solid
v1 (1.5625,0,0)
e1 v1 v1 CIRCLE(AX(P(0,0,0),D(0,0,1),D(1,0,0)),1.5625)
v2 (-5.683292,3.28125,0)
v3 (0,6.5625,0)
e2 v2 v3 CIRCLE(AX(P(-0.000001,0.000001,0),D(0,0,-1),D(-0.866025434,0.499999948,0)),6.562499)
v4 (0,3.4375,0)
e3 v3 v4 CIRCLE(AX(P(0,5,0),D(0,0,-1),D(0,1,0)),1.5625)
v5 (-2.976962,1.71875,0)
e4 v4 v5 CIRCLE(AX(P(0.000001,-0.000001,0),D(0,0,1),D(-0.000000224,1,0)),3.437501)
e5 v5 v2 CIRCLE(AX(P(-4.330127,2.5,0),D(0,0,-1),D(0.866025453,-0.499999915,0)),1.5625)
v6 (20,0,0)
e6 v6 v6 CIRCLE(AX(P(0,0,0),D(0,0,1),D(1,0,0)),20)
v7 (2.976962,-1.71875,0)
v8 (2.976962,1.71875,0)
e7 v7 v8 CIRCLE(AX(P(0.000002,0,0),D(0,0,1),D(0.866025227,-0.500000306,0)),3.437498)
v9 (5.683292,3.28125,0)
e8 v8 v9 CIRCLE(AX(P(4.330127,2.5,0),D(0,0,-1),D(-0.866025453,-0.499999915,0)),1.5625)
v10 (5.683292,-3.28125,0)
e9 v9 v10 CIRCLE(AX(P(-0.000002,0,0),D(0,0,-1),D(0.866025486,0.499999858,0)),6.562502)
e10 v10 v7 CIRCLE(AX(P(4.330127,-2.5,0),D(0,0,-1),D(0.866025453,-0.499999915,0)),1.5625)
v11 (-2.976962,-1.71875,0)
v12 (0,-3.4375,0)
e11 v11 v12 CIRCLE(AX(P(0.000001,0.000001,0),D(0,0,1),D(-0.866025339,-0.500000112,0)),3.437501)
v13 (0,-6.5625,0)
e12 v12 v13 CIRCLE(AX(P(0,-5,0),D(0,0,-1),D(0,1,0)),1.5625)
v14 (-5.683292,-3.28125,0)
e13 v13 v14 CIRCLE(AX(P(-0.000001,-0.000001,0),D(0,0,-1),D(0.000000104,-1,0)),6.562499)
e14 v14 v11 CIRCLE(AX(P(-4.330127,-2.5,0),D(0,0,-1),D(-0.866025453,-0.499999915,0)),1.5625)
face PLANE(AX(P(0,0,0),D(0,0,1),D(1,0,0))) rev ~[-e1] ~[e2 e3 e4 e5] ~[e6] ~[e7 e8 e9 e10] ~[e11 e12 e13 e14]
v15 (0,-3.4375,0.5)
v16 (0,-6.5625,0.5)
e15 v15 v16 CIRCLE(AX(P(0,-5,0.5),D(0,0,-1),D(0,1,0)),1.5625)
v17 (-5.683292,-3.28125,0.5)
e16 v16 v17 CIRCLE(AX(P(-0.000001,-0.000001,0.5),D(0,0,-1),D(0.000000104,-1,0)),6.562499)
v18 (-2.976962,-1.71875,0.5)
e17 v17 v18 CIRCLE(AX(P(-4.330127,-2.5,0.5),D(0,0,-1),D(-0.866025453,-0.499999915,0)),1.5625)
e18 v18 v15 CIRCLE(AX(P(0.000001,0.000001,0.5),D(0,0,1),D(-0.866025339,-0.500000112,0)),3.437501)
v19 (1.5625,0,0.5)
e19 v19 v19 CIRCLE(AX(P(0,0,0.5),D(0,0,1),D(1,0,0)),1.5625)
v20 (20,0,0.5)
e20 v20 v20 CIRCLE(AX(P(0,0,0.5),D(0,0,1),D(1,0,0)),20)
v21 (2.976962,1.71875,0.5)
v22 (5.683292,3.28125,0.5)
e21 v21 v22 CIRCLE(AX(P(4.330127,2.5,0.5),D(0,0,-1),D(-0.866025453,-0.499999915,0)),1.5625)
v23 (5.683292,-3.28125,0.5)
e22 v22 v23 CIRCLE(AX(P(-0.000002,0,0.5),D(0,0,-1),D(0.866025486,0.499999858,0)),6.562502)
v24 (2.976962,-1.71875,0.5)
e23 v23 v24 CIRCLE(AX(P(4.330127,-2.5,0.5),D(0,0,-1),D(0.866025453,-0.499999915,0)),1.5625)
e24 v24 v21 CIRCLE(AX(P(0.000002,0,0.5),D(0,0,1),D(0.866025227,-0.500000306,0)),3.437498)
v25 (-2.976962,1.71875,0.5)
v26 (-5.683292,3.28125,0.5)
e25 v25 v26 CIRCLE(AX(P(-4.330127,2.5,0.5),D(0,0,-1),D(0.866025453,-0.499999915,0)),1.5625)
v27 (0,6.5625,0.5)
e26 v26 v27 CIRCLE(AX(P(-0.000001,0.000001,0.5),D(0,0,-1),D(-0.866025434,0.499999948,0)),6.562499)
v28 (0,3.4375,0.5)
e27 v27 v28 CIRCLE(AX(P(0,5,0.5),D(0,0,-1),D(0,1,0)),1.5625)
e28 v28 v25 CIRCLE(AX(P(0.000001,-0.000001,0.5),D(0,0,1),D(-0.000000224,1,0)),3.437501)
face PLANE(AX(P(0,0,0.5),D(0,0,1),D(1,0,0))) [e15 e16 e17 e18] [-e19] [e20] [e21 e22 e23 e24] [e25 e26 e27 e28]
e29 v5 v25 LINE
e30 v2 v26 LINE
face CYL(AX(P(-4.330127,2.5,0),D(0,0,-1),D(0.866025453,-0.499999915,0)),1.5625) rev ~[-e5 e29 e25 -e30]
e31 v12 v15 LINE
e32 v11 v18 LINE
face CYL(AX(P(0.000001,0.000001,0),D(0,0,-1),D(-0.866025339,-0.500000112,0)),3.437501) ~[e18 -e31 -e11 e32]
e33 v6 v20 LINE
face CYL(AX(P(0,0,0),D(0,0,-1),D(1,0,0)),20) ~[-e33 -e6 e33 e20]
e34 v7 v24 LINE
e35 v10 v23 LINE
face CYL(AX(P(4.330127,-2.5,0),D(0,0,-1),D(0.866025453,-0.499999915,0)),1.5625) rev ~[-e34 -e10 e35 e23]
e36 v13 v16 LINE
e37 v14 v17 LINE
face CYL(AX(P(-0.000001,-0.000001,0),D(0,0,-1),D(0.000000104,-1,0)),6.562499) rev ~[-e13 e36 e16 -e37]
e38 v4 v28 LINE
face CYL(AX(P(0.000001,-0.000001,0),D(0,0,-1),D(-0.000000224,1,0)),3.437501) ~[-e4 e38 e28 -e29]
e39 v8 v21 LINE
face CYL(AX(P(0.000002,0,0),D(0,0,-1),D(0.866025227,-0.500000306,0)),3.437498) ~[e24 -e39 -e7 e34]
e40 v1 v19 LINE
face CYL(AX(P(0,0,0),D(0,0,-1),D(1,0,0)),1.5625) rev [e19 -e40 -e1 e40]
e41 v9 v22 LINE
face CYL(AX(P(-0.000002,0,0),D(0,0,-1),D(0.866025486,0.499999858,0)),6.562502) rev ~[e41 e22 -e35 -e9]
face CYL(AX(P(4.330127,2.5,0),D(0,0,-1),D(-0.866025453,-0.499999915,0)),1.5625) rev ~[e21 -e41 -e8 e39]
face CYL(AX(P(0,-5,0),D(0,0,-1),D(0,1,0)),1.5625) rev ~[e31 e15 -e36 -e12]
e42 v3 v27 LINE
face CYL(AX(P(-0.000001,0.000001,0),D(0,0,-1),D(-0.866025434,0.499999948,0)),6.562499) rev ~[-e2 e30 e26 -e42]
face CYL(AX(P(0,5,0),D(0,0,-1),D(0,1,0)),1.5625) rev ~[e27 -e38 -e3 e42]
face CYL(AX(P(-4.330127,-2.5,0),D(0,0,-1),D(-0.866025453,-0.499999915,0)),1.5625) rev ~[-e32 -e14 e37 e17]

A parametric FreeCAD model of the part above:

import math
import FreeCAD as App
import Part
import Sketcher

V = App.Vector

doc = App.newDocument("Part")
body = doc.addObject("PartDesign::Body", "Body")

sketch1 = body.newObject("Sketcher::SketchObject", "Sketch")
sketch1.AttachmentSupport = (doc.getObject("XY_Plane"), [""])
sketch1.MapMode = "FlatFace"
sketch1.addGeometry(Part.Circle(V(0, 0, 0), V(0, 0, 1), 20), False)
sketch1.addGeometry(Part.ArcOfCircle(Part.Circle(V(0, 0, 0), V(0, 0, 1), 6.6), math.radians(-150), math.radians(-90)), False)
sketch1.addGeometry(Part.ArcOfCircle(Part.Circle(V(-4.3, -2.5, 0), V(0, 0, 1), 1.6), math.radians(30), math.radians(210)), False)
sketch1.addGeometry(Part.ArcOfCircle(Part.Circle(V(0, 0, 0), V(0, 0, 1), 3.4), math.radians(-150), math.radians(-90)), False)
sketch1.addGeometry(Part.ArcOfCircle(Part.Circle(V(0, -5, 0), V(0, 0, 1), 1.6), math.radians(-90), math.radians(90)), False)
sketch1.addGeometry(Part.Circle(V(0, 0, 0), V(0, 0, 1), 1.6), False)
sketch1.addGeometry(Part.ArcOfCircle(Part.Circle(V(0, 0, 0), V(0, 0, 1), 6.6), math.radians(90), math.radians(150)), False)
sketch1.addGeometry(Part.ArcOfCircle(Part.Circle(V(0, 5, 0), V(0, 0, 1), 1.6), math.radians(-90), math.radians(90)), False)
sketch1.addGeometry(Part.ArcOfCircle(Part.Circle(V(0, 0, 0), V(0, 0, 1), 3.4), math.radians(90), math.radians(150)), False)
sketch1.addGeometry(Part.ArcOfCircle(Part.Circle(V(-4.3, 2.5, 0), V(0, 0, 1), 1.6), math.radians(150), math.radians(330)), False)
sketch1.addGeometry(Part.ArcOfCircle(Part.Circle(V(0, 0, 0), V(0, 0, 1), 6.6), math.radians(-30), math.radians(30)), False)
sketch1.addGeometry(Part.ArcOfCircle(Part.Circle(V(4.3, -2.5, 0), V(0, 0, 1), 1.6), math.radians(150), math.radians(330)), False)
sketch1.addGeometry(Part.ArcOfCircle(Part.Circle(V(0, 0, 0), V(0, 0, 1), 3.4), math.radians(-30), math.radians(30)), False)
sketch1.addGeometry(Part.ArcOfCircle(Part.Circle(V(4.3, 2.5, 0), V(0, 0, 1), 1.6), math.radians(30), math.radians(210)), False)
sketch1.addConstraint(Sketcher.Constraint("Tangent", 1, 1, 2, 2))
sketch1.addConstraint(Sketcher.Constraint("Tangent", 2, 1, 3, 1))
sketch1.addConstraint(Sketcher.Constraint("Tangent", 3, 2, 4, 2))
sketch1.addConstraint(Sketcher.Constraint("Tangent", 4, 1, 1, 2))
sketch1.addConstraint(Sketcher.Constraint("Tangent", 6, 1, 7, 2))
sketch1.addConstraint(Sketcher.Constraint("Tangent", 7, 1, 8, 1))
sketch1.addConstraint(Sketcher.Constraint("Tangent", 8, 2, 9, 2))
sketch1.addConstraint(Sketcher.Constraint("Tangent", 9, 1, 6, 2))
sketch1.addConstraint(Sketcher.Constraint("Tangent", 10, 1, 11, 2))
sketch1.addConstraint(Sketcher.Constraint("Tangent", 11, 1, 12, 1))
sketch1.addConstraint(Sketcher.Constraint("Tangent", 12, 2, 13, 2))
sketch1.addConstraint(Sketcher.Constraint("Tangent", 13, 1, 10, 2))
sketch1.addConstraint(Sketcher.Constraint("Coincident", 0, 3, -1, 1))
sketch1.addConstraint(Sketcher.Constraint("Coincident", 1, 3, -1, 1))
sketch1.addConstraint(Sketcher.Constraint("Coincident", 3, 3, -1, 1))
sketch1.addConstraint(Sketcher.Constraint("Coincident", 5, 3, -1, 1))
sketch1.addConstraint(Sketcher.Constraint("Coincident", 6, 3, -1, 1))
sketch1.addConstraint(Sketcher.Constraint("Coincident", 8, 3, -1, 1))
sketch1.addConstraint(Sketcher.Constraint("Coincident", 10, 3, -1, 1))
sketch1.addConstraint(Sketcher.Constraint("Coincident", 12, 3, -1, 1))
sketch1.addConstraint(Sketcher.Constraint("Equal", 4, 5))
sketch1.addConstraint(Sketcher.Constraint("Equal", 1, 6))
sketch1.addConstraint(Sketcher.Constraint("Equal", 5, 7))
sketch1.addConstraint(Sketcher.Constraint("Equal", 9, 11))
sketch1.addConstraint(Sketcher.Constraint("Symmetric", 9, 3, 11, 3, -1, 1))
sketch1.addConstraint(Sketcher.Constraint("PointOnObject", 4, 3, -2))
sketch1.addConstraint(Sketcher.Constraint("PointOnObject", 7, 3, -2))
sketch1.addConstraint(Sketcher.Constraint("Horizontal", 2, 3, 11, 3))
sketch1.addConstraint(Sketcher.Constraint("Horizontal", 9, 3, 13, 3))
sketch1.addConstraint(Sketcher.Constraint("Diameter", 0, 40.0))
sketch1.addConstraint(Sketcher.Constraint("Diameter", 5, 3.125))
sketch1.addConstraint(Sketcher.Constraint("DistanceY", 4, 3, -1, 1, 5.0))
sketch1.addConstraint(Sketcher.Constraint("DistanceY", 2, 1, 9, 1, 5.0))
pad1 = body.newObject("PartDesign::Pad", "Pad")
pad1.Profile = sketch1
pad1.Length = 0.5

doc.recompute()
